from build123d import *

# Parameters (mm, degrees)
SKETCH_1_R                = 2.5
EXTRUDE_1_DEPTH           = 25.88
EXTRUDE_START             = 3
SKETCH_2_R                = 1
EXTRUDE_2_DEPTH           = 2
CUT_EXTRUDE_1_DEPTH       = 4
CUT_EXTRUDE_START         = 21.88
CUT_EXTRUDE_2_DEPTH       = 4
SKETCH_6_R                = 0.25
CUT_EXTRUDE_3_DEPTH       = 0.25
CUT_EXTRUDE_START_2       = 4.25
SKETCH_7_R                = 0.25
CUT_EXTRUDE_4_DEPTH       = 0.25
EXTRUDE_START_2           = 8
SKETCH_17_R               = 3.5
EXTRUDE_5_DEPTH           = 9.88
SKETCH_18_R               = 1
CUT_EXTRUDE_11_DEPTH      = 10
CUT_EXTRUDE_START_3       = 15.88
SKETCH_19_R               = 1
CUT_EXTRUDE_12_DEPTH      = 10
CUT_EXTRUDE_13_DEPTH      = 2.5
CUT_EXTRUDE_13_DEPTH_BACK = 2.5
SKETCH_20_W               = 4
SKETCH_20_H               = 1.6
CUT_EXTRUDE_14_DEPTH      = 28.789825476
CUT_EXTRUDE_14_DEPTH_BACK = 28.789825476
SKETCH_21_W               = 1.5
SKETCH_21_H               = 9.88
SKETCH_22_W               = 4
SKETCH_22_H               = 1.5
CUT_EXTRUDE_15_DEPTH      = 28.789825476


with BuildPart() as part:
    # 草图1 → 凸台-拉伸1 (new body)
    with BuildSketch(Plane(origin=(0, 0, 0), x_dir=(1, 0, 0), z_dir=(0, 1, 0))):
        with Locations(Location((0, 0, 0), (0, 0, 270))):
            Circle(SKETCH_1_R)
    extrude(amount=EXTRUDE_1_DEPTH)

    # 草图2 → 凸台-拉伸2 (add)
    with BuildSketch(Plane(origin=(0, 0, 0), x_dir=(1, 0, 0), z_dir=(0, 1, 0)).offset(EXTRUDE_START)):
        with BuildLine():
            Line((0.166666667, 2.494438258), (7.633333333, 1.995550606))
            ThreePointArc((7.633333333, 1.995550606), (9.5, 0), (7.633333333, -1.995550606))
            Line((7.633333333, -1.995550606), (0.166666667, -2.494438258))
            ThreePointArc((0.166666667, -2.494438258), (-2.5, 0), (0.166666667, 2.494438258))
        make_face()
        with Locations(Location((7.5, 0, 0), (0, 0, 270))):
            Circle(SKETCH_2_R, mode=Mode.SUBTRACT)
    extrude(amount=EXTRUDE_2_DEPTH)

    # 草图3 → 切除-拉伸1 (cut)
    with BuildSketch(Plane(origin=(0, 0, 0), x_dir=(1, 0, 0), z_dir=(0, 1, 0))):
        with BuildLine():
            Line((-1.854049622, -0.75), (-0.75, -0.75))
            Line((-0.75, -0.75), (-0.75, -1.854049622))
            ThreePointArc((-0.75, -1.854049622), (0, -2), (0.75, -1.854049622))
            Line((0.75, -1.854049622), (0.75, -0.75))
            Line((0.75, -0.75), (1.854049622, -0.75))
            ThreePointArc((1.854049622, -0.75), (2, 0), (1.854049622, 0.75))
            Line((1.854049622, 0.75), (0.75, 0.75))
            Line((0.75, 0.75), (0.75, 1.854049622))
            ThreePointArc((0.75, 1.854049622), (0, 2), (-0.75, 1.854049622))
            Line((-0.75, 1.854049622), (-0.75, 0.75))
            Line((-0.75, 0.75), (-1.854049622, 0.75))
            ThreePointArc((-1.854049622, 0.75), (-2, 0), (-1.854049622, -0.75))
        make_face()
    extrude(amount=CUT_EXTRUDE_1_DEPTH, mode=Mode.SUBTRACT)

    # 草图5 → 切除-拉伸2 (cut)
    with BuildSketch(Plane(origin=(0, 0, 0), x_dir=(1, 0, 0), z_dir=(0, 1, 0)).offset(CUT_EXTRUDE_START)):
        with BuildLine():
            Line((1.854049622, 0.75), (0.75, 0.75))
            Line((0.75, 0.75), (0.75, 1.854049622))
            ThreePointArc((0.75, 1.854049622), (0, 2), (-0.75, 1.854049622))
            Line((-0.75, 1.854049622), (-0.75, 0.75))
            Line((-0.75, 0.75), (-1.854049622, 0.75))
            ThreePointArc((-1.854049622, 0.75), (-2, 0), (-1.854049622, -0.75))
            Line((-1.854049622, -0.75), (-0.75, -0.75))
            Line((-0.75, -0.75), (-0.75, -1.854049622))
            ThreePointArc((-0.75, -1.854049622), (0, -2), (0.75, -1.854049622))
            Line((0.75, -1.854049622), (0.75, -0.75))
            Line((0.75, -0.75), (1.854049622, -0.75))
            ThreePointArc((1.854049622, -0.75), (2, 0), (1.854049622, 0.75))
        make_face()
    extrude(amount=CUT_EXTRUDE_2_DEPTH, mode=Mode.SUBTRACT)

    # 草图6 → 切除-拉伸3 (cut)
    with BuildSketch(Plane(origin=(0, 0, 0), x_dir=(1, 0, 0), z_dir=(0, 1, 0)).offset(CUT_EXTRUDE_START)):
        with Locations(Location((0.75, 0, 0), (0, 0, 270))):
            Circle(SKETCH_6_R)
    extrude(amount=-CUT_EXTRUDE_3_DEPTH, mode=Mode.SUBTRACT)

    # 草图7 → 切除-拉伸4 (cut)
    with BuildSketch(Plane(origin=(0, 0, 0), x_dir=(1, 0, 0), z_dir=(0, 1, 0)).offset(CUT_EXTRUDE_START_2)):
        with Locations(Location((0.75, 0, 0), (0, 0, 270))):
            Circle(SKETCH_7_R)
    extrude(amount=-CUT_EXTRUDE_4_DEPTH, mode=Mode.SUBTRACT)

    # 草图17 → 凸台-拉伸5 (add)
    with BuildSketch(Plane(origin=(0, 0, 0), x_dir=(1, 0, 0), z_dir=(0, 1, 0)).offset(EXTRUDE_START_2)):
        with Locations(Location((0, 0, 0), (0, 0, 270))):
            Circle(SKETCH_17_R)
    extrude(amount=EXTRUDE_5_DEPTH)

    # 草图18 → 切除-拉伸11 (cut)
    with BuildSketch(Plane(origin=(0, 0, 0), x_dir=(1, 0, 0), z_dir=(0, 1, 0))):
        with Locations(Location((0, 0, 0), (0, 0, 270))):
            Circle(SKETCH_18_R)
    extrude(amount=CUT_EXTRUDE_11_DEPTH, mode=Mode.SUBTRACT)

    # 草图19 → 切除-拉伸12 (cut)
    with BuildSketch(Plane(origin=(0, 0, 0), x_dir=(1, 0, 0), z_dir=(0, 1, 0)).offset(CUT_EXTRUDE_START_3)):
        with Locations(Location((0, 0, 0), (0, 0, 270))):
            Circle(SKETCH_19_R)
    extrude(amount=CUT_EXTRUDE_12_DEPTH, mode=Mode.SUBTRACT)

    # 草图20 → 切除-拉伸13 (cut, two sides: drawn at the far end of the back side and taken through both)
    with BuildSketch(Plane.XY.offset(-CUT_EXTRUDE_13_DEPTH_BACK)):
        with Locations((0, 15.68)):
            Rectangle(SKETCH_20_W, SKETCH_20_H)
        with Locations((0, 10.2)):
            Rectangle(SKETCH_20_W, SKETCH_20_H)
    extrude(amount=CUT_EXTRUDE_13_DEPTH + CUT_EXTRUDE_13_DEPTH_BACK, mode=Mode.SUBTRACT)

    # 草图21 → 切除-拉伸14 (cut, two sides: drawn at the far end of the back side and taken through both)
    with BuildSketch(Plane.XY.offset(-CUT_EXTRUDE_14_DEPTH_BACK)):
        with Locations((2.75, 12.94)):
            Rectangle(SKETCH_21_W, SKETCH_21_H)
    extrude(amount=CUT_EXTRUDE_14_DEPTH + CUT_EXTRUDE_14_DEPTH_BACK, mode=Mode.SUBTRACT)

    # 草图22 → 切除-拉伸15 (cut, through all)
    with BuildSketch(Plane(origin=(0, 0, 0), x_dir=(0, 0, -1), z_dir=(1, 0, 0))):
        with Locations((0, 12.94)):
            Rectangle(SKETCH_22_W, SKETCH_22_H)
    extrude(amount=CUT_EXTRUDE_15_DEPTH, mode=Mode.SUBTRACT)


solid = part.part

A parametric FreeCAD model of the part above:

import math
import FreeCAD as App
import Part
import Sketcher

V = App.Vector
Q = App.Units.Quantity

doc = App.newDocument("Part")
params = doc.addObject("Spreadsheet::Sheet", "Params")
for row, (alias, value) in enumerate([
    ("sketch1_diameter", "5 mm"),
    ("pad1_length", "25.88 mm"),
    ("sketch2_diameter", "2 mm"),
    ("sketch2_radius", "2 mm"),
    ("sketch2_radius2", "2.5 mm"),
    ("pad2_length", "2 mm"),
    ("sketch3_radius", "2 mm"),
    ("pocket1_length", "4 mm"),
    ("sketch4_radius", "2 mm"),
    ("pocket2_length", "4 mm"),
    ("sketch5_diameter", "0.5 mm"),
    ("pocket3_length", "0.25 mm"),
    ("sketch6_diameter", "0.5 mm"),
    ("pocket4_length", "0.25 mm"),
    ("sketch7_diameter", "7 mm"),
    ("pad3_length", "9.88 mm"),
    ("sketch8_diameter", "2 mm"),
    ("pocket5_length", "10 mm"),
    ("sketch9_diameter", "2 mm"),
    ("pocket6_length", "10 mm"),
    ("sketch10_width", "4 mm"),
    ("sketch10_height", "1.6 mm"),
    ("pocket7_length", "2.5 mm"),
    ("pocket7_length2", "2.5 mm"),
    ("sketch11_width", "1.5 mm"),
    ("sketch11_height", "9.88 mm"),
    ("sketch12_height", "4 mm"),
    ("sketch12_width", "1.5 mm"),
], start=1):
    params.set(f"A{row}", alias)
    params.set(f"B{row}", "=" + value)
    params.setAlias(f"B{row}", alias)

body = doc.addObject("PartDesign::Body", "Body")

# Sketch on XZ plane
sketch1 = body.newObject("Sketcher::SketchObject", "Sketch")
sketch1.AttachmentSupport = (doc.getObject("XZ_Plane"), [""])
sketch1.MapMode = "FlatFace"
sketch1.addGeometry(Part.Circle(V(0, 0, 0), V(0, 0, 1), 2.5), False)
sketch1.addConstraint([
    Sketcher.Constraint("Coincident", 0, 3, -1, 1),
    Sketcher.Constraint("Diameter", 0, Q("5 mm")),
])
sketch1.setExpression("Constraints[1]", "Params.sketch1_diameter")
pad1 = body.newObject("PartDesign::Pad", "Pad")
pad1.Profile = sketch1
pad1.setExpression("Length", "Params.pad1_length")
pad1.Reversed = True

# Sketch on XZ plane
sketch2 = body.newObject("Sketcher::SketchObject", "Sketch001")
sketch2.AttachmentSupport = (doc.getObject("XZ_Plane"), [""])
sketch2.MapMode = "FlatFace"
sketch2.AttachmentOffset = App.Placement(V(0, 0, -3), App.Rotation())
sketch2.addGeometry([
    Part.LineSegment(V(7.6, -2, 0), V(0.2, -2.5, 0)),  # 0
    Part.ArcOfCircle(Part.Circle(V(0, 0, 0), V(0, 0, 1), 2.5), math.radians(86), math.radians(274)),  # 1
    Part.LineSegment(V(0.2, 2.5, 0), V(7.6, 2, 0)),  # 2
    Part.ArcOfCircle(Part.Circle(V(7.5, 0, 0), V(0, 0, 1), 2), math.radians(-86), math.radians(86)),  # 3
    Part.Circle(V(7.5, 0, 0), V(0, 0, 1), 1),  # 4
], False)
sketch2.addConstraint([
    Sketcher.Constraint("Tangent", 0, 2, 1, 2),
    Sketcher.Constraint("Tangent", 1, 1, 2, 1),
    Sketcher.Constraint("Tangent", 2, 2, 3, 2),
    Sketcher.Constraint("Tangent", 3, 1, 0, 1),
    Sketcher.Constraint("Coincident", 1, 3, -1, 1),
    Sketcher.Constraint("Coincident", 4, 3, 3, 3),
    Sketcher.Constraint("PointOnObject", 3, 3, -1),
    Sketcher.Constraint("Diameter", 4, Q("2 mm")),
    Sketcher.Constraint("Radius", 3, Q("2 mm")),
    Sketcher.Constraint("Radius", 1, Q("2.5 mm")),
    Sketcher.Constraint("DistanceX", -1, 1, 3, 3, Q("7.5 mm")),
])
sketch2.setExpression("Constraints[7]", "Params.sketch2_diameter")
sketch2.setExpression("Constraints[8]", "Params.sketch2_radius")
sketch2.setExpression("Constraints[9]", "Params.sketch2_radius2")
pad2 = body.newObject("PartDesign::Pad", "Pad001")
pad2.Profile = sketch2
pad2.setExpression("Length", "Params.pad2_length")
pad2.Reversed = True

# Sketch on XZ plane
sketch3 = body.newObject("Sketcher::SketchObject", "Sketch002")
sketch3.AttachmentSupport = (doc.getObject("XZ_Plane"), [""])
sketch3.MapMode = "FlatFace"
sketch3.addGeometry([
    Part.LineSegment(V(-1.9, 0.8, 0), V(-0.8, 0.8, 0)),  # 0
    Part.LineSegment(V(-0.8, 0.8, 0), V(-0.8, 1.9, 0)),  # 1
    Part.ArcOfCircle(Part.Circle(V(0, 0, 0), V(0, 0, 1), 2), math.radians(68), math.radians(112)),  # 2
    Part.LineSegment(V(0.8, 1.9, 0), V(0.8, 0.8, 0)),  # 3
    Part.LineSegment(V(0.8, 0.8, 0), V(1.9, 0.8, 0)),  # 4
    Part.ArcOfCircle(Part.Circle(V(0, 0, 0), V(0, 0, 1), 2), math.radians(-22), math.radians(22)),  # 5
    Part.LineSegment(V(1.9, -0.8, 0), V(0.8, -0.8, 0)),  # 6
    Part.LineSegment(V(0.8, -0.8, 0), V(0.8, -1.9, 0)),  # 7
    Part.ArcOfCircle(Part.Circle(V(0, 0, 0), V(0, 0, 1), 2), math.radians(-112), math.radians(-68)),  # 8
    Part.LineSegment(V(-0.8, -1.9, 0), V(-0.8, -0.8, 0)),  # 9
    Part.LineSegment(V(-0.8, -0.8, 0), V(-1.9, -0.8, 0)),  # 10
    Part.ArcOfCircle(Part.Circle(V(0, 0, 0), V(0, 0, 1), 2), math.radians(158), math.radians(202)),  # 11
], False)
sketch3.addConstraint([
    Sketcher.Constraint("Coincident", 0, 2, 1, 1),
    Sketcher.Constraint("Coincident", 1, 2, 2, 2),
    Sketcher.Constraint("Coincident", 2, 1, 3, 1),
    Sketcher.Constraint("Coincident", 3, 2, 4, 1),
    Sketcher.Constraint("Coincident", 4, 2, 5, 2),
    Sketcher.Constraint("Coincident", 5, 1, 6, 1),
    Sketcher.Constraint("Coincident", 6, 2, 7, 1),
    Sketcher.Constraint("Coincident", 7, 2, 8, 2),
    Sketcher.Constraint("Coincident", 8, 1, 9, 1),
    Sketcher.Constraint("Coincident", 9, 2, 10, 1),
    Sketcher.Constraint("Coincident", 10, 2, 11, 2),
    Sketcher.Constraint("Coincident", 11, 1, 0, 1),
    Sketcher.Constraint("Horizontal", 0),
    Sketcher.Constraint("Vertical", 1),
    Sketcher.Constraint("Vertical", 3),
    Sketcher.Constraint("Horizontal", 4),
    Sketcher.Constraint("Horizontal", 6),
    Sketcher.Constraint("Vertical", 7),
    Sketcher.Constraint("Vertical", 9),
    Sketcher.Constraint("Horizontal", 10),
    Sketcher.Constraint("Coincident", 2, 3, -1, 1),
    Sketcher.Constraint("Coincident", 5, 3, -1, 1),
    Sketcher.Constraint("Coincident", 8, 3, -1, 1),
    Sketcher.Constraint("Coincident", 11, 3, -1, 1),
    Sketcher.Constraint("Equal", 2, 5),
    Sketcher.Constraint("Equal", 5, 8),
    Sketcher.Constraint("Equal", 8, 11),
    Sketcher.Constraint("Symmetric", 0, 2, 6, 2, -1, 1),
    Sketcher.Constraint("Symmetric", 3, 2, 9, 2, -1, 1),
    Sketcher.Constraint("Symmetric", 0, 2, 3, 2, -2),
    Sketcher.Constraint("Equal", 10, 1),
    Sketcher.Constraint("Radius", 2, Q("2 mm")),
    Sketcher.Constraint("DistanceX", 1, 2, 2, 1, Q("1.5 mm")),
])
sketch3.setExpression("Constraints[31]", "Params.sketch3_radius")
pocket1 = body.newObject("PartDesign::Pocket", "Pocket")
pocket1.Profile = sketch3
pocket1.setExpression("Length", "Params.pocket1_length")

# Sketch on XZ plane
sketch4 = body.newObject("Sketcher::SketchObject", "Sketch003")
sketch4.AttachmentSupport = (doc.getObject("XZ_Plane"), [""])
sketch4.MapMode = "FlatFace"
sketch4.AttachmentOffset = App.Placement(V(0, 0, -21.88), App.Rotation())
sketch4.addGeometry([
    Part.LineSegment(V(1.9, -0.8, 0), V(0.8, -0.8, 0)),  # 0
    Part.LineSegment(V(0.8, -0.8, 0), V(0.8, -1.9, 0)),  # 1
    Part.ArcOfCircle(Part.Circle(V(0, 0, 0), V(0, 0, 1), 2), math.radians(-112), math.radians(-68)),  # 2
    Part.LineSegment(V(-0.8, -1.9, 0), V(-0.8, -0.8, 0)),  # 3
    Part.LineSegment(V(-0.8, -0.8, 0), V(-1.9, -0.8, 0)),  # 4
    Part.ArcOfCircle(Part.Circle(V(0, 0, 0), V(0, 0, 1), 2), math.radians(158), math.radians(202)),  # 5
    Part.LineSegment(V(-1.9, 0.8, 0), V(-0.8, 0.8, 0)),  # 6
    Part.LineSegment(V(-0.8, 0.8, 0), V(-0.8, 1.9, 0)),  # 7
    Part.ArcOfCircle(Part.Circle(V(0, 0, 0), V(0, 0, 1), 2), math.radians(68), math.radians(112)),  # 8
    Part.LineSegment(V(0.8, 1.9, 0), V(0.8, 0.8, 0)),  # 9
    Part.LineSegment(V(0.8, 0.8, 0), V(1.9, 0.8, 0)),  # 10
    Part.ArcOfCircle(Part.Circle(V(0, 0, 0), V(0, 0, 1), 2), math.radians(-22), math.radians(22)),  # 11
], False)
sketch4.addConstraint([
    Sketcher.Constraint("Coincident", 0, 2, 1, 1),
    Sketcher.Constraint("Coincident", 1, 2, 2, 2),
    Sketcher.Constraint("Coincident", 2, 1, 3, 1),
    Sketcher.Constraint("Coincident", 3, 2, 4, 1),
    Sketcher.Constraint("Coincident", 4, 2, 5, 2),
    Sketcher.Constraint("Coincident", 5, 1, 6, 1),
    Sketcher.Constraint("Coincident", 6, 2, 7, 1),
    Sketcher.Constraint("Coincident", 7, 2, 8, 2),
    Sketcher.Constraint("Coincident", 8, 1, 9, 1),
    Sketcher.Constraint("Coincident", 9, 2, 10, 1),
    Sketcher.Constraint("Coincident", 10, 2, 11, 2),
    Sketcher.Constraint("Coincident", 11, 1, 0, 1),
    Sketcher.Constraint("Horizontal", 0),
    Sketcher.Constraint("Vertical", 1),
    Sketcher.Constraint("Vertical", 3),
    Sketcher.Constraint("Horizontal", 4),
    Sketcher.Constraint("Horizontal", 6),
    Sketcher.Constraint("Vertical", 7),
    Sketcher.Constraint("Vertical", 9),
    Sketcher.Constraint("Horizontal", 10),
    Sketcher.Constraint("Coincident", 2, 3, -1, 1),
    Sketcher.Constraint("Coincident", 5, 3, -1, 1),
    Sketcher.Constraint("Coincident", 8, 3, -1, 1),
    Sketcher.Constraint("Coincident", 11, 3, -1, 1),
    Sketcher.Constraint("Equal", 2, 5),
    Sketcher.Constraint("Equal", 5, 8),
    Sketcher.Constraint("Equal", 8, 11),
    Sketcher.Constraint("Symmetric", 0, 2, 6, 2, -1, 1),
    Sketcher.Constraint("Symmetric", 3, 2, 9, 2, -1, 1),
    Sketcher.Constraint("Symmetric", 0, 2, 3, 2, -2),
    Sketcher.Constraint("Equal", 10, 1),
    Sketcher.Constraint("Radius", 2, Q("2 mm")),
    Sketcher.Constraint("DistanceX", 2, 1, 1, 2, Q("1.5 mm")),
])
sketch4.setExpression("Constraints[31]", "Params.sketch4_radius")
pocket2 = body.newObject("PartDesign::Pocket", "Pocket001")
pocket2.Profile = sketch4
pocket2.setExpression("Length", "Params.pocket2_length")

# Sketch on XZ plane
sketch5 = body.newObject("Sketcher::SketchObject", "Sketch004")
sketch5.AttachmentSupport = (doc.getObject("XZ_Plane"), [""])
sketch5.MapMode = "FlatFace"
sketch5.AttachmentOffset = App.Placement(V(0, 0, -21.88), App.Rotation())
sketch5.addGeometry(Part.Circle(V(0.75, 0, 0), V(0, 0, 1), 0.25), False)
sketch5.addConstraint([
    Sketcher.Constraint("PointOnObject", 0, 3, -1),
    Sketcher.Constraint("Diameter", 0, Q("0.5 mm")),
    Sketcher.Constraint("DistanceX", -1, 1, 0, 3, Q("0.75 mm")),
])
sketch5.setExpression("Constraints[1]", "Params.sketch5_diameter")
pocket3 = body.newObject("PartDesign::Pocket", "Pocket002")
pocket3.Profile = sketch5
pocket3.setExpression("Length", "Params.pocket3_length")
pocket3.Reversed = True

# Sketch on XZ plane
sketch6 = body.newObject("Sketcher::SketchObject", "Sketch005")
sketch6.AttachmentSupport = (doc.getObject("XZ_Plane"), [""])
sketch6.MapMode = "FlatFace"
sketch6.AttachmentOffset = App.Placement(V(0, 0, -4.25), App.Rotation())
sketch6.addGeometry(Part.Circle(V(0.75, 0, 0), V(0, 0, 1), 0.25), False)
sketch6.addConstraint([
    Sketcher.Constraint("PointOnObject", 0, 3, -1),
    Sketcher.Constraint("Diameter", 0, Q("0.5 mm")),
    Sketcher.Constraint("DistanceX", -1, 1, 0, 3, Q("0.75 mm")),
])
sketch6.setExpression("Constraints[1]", "Params.sketch6_diameter")
pocket4 = body.newObject("PartDesign::Pocket", "Pocket003")
pocket4.Profile = sketch6
pocket4.setExpression("Length", "Params.pocket4_length")
pocket4.Reversed = True

# Sketch on XZ plane
sketch7 = body.newObject("Sketcher::SketchObject", "Sketch006")
sketch7.AttachmentSupport = (doc.getObject("XZ_Plane"), [""])
sketch7.MapMode = "FlatFace"
sketch7.AttachmentOffset = App.Placement(V(0, 0, -8), App.Rotation())
sketch7.addGeometry(Part.Circle(V(0, 0, 0), V(0, 0, 1), 3.5), False)
sketch7.addConstraint([
    Sketcher.Constraint("Coincident", 0, 3, -1, 1),
    Sketcher.Constraint("Diameter", 0, Q("7 mm")),
])
sketch7.setExpression("Constraints[1]", "Params.sketch7_diameter")
pad3 = body.newObject("PartDesign::Pad", "Pad002")
pad3.Profile = sketch7
pad3.setExpression("Length", "Params.pad3_length")
pad3.Reversed = True

# Sketch on XZ plane
sketch8 = body.newObject("Sketcher::SketchObject", "Sketch007")
sketch8.AttachmentSupport = (doc.getObject("XZ_Plane"), [""])
sketch8.MapMode = "FlatFace"
sketch8.addGeometry(Part.Circle(V(0, 0, 0), V(0, 0, 1), 1), False)
sketch8.addConstraint([
    Sketcher.Constraint("Coincident", 0, 3, -1, 1),
    Sketcher.Constraint("Diameter", 0, Q("2 mm")),
])
sketch8.setExpression("Constraints[1]", "Params.sketch8_diameter")
pocket5 = body.newObject("PartDesign::Pocket", "Pocket004")
pocket5.Profile = sketch8
pocket5.setExpression("Length", "Params.pocket5_length")

# Sketch on XZ plane
sketch9 = body.newObject("Sketcher::SketchObject", "Sketch008")
sketch9.AttachmentSupport = (doc.getObject("XZ_Plane"), [""])
sketch9.MapMode = "FlatFace"
sketch9.AttachmentOffset = App.Placement(V(0, 0, -15.88), App.Rotation())
sketch9.addGeometry(Part.Circle(V(0, 0, 0), V(0, 0, 1), 1), False)
sketch9.addConstraint([
    Sketcher.Constraint("Coincident", 0, 3, -1, 1),
    Sketcher.Constraint("Diameter", 0, Q("2 mm")),
])
sketch9.setExpression("Constraints[1]", "Params.sketch9_diameter")
pocket6 = body.newObject("PartDesign::Pocket", "Pocket005")
pocket6.Profile = sketch9
pocket6.setExpression("Length", "Params.pocket6_length")

# Sketch on XY plane
sketch10 = body.newObject("Sketcher::SketchObject", "Sketch009")
sketch10.AttachmentSupport = (doc.getObject("XY_Plane"), [""])
sketch10.MapMode = "FlatFace"
sketch10.addGeometry([
    Part.LineSegment(V(-2, 16.5, 0), V(-2, 14.9, 0)),  # 0
    Part.LineSegment(V(-2, 14.9, 0), V(2, 14.9, 0)),  # 1
    Part.LineSegment(V(2, 14.9, 0), V(2, 16.5, 0)),  # 2
    Part.LineSegment(V(2, 16.5, 0), V(-2, 16.5, 0)),  # 3
    Part.LineSegment(V(-2, 11, 0), V(-2, 9.4, 0)),  # 4
    Part.LineSegment(V(-2, 9.4, 0), V(2, 9.4, 0)),  # 5
    Part.LineSegment(V(2, 9.4, 0), V(2, 11, 0)),  # 6
    Part.LineSegment(V(2, 11, 0), V(-2, 11, 0)),  # 7
], False)
sketch10.addConstraint([
    Sketcher.Constraint("Coincident", 0, 2, 1, 1),
    Sketcher.Constraint("Coincident", 1, 2, 2, 1),
    Sketcher.Constraint("Coincident", 2, 2, 3, 1),
    Sketcher.Constraint("Coincident", 3, 2, 0, 1),
    Sketcher.Constraint("Coincident", 4, 2, 5, 1),
    Sketcher.Constraint("Coincident", 5, 2, 6, 1),
    Sketcher.Constraint("Coincident", 6, 2, 7, 1),
    Sketcher.Constraint("Coincident", 7, 2, 4, 1),
    Sketcher.Constraint("Vertical", 0),
    Sketcher.Constraint("Horizontal", 1),
    Sketcher.Constraint("Vertical", 2),
    Sketcher.Constraint("Horizontal", 3),
    Sketcher.Constraint("Vertical", 4),
    Sketcher.Constraint("Horizontal", 5),
    Sketcher.Constraint("Vertical", 6),
    Sketcher.Constraint("Horizontal", 7),
    Sketcher.Constraint("Vertical", 3, 2, 4, 2),
    Sketcher.Constraint("Vertical", 2, 2, 5, 2),
    Sketcher.Constraint("Equal", 2, 4),
    Sketcher.Constraint("DistanceX", 1, 1, 1, 2, Q("4 mm")),
    Sketcher.Constraint("DistanceY", 0, 2, 0, 1, Q("1.6 mm")),
    Sketcher.Constraint("DistanceX", 0, 2, -1, 1, Q("2 mm")),
    Sketcher.Constraint("DistanceY", -1, 1, 6, 2, Q("11 mm")),
    Sketcher.Constraint("DistanceY", -1, 1, 0, 2, Q("14.88 mm")),
])
sketch10.setExpression("Constraints[19]", "Params.sketch10_width")
sketch10.setExpression("Constraints[20]", "Params.sketch10_height")
pocket7 = body.newObject("PartDesign::Pocket", "Pocket006")
pocket7.Profile = sketch10
pocket7.Type = "TwoLengths"
pocket7.setExpression("Length", "Params.pocket7_length")
pocket7.setExpression("Length2", "Params.pocket7_length2")
pocket7.Reversed = True

# Sketch on XY plane
sketch11 = body.newObject("Sketcher::SketchObject", "Sketch010")
sketch11.AttachmentSupport = (doc.getObject("XY_Plane"), [""])
sketch11.MapMode = "FlatFace"
sketch11.addGeometry([
    Part.LineSegment(V(2, 17.9, 0), V(2, 8, 0)),
    Part.LineSegment(V(2, 8, 0), V(3.5, 8, 0)),
    Part.LineSegment(V(3.5, 8, 0), V(3.5, 17.9, 0)),
    Part.LineSegment(V(3.5, 17.9, 0), V(2, 17.9, 0)),
], False)
sketch11.addConstraint([
    Sketcher.Constraint("Coincident", 0, 2, 1, 1),
    Sketcher.Constraint("Coincident", 1, 2, 2, 1),
    Sketcher.Constraint("Coincident", 2, 2, 3, 1),
    Sketcher.Constraint("Coincident", 3, 2, 0, 1),
    Sketcher.Constraint("Vertical", 0),
    Sketcher.Constraint("Horizontal", 1),
    Sketcher.Constraint("Vertical", 2),
    Sketcher.Constraint("Horizontal", 3),
    Sketcher.Constraint("DistanceX", 1, 1, 1, 2, Q("1.5 mm")),
    Sketcher.Constraint("DistanceX", -1, 1, 0, 2, Q("2 mm")),
    Sketcher.Constraint("DistanceY", -1, 1, 0, 2, Q("8 mm")),
    Sketcher.Constraint("DistanceY", 0, 2, 0, 1, Q("9.88 mm")),
])
sketch11.setExpression("Constraints[8]", "Params.sketch11_width")
sketch11.setExpression("Constraints[11]", "Params.sketch11_height")
pocket8 = body.newObject("PartDesign::Pocket", "Pocket007")
pocket8.Profile = sketch11
pocket8.Type = "ThroughAll"
pocket8.Midplane = True

# Sketch on YZ plane
sketch12 = body.newObject("Sketcher::SketchObject", "Sketch011")
sketch12.AttachmentSupport = (doc.getObject("YZ_Plane"), [""])
sketch12.MapMode = "FlatFace"
sketch12.addGeometry([
    Part.LineSegment(V(13.7, 2, 0), V(12.2, 2, 0)),
    Part.LineSegment(V(12.2, 2, 0), V(12.2, -2, 0)),
    Part.LineSegment(V(12.2, -2, 0), V(13.7, -2, 0)),
    Part.LineSegment(V(13.7, -2, 0), V(13.7, 2, 0)),
], False)
sketch12.addConstraint([
    Sketcher.Constraint("Coincident", 0, 2, 1, 1),
    Sketcher.Constraint("Coincident", 1, 2, 2, 1),
    Sketcher.Constraint("Coincident", 2, 2, 3, 1),
    Sketcher.Constraint("Coincident", 3, 2, 0, 1),
    Sketcher.Constraint("Horizontal", 0),
    Sketcher.Constraint("Vertical", 1),
    Sketcher.Constraint("Horizontal", 2),
    Sketcher.Constraint("Vertical", 3),
    Sketcher.Constraint("DistanceY", 1, 2, 1, 1, Q("4 mm")),
    Sketcher.Constraint("DistanceX", 0, 2, 0, 1, Q("1.5 mm")),
    Sketcher.Constraint("DistanceY", -1, 1, 0, 2, Q("2 mm")),
    Sketcher.Constraint("DistanceX", -1, 1, 0, 2, Q("12.19 mm")),
])
sketch12.setExpression("Constraints[8]", "Params.sketch12_height")
sketch12.setExpression("Constraints[9]", "Params.sketch12_width")
pocket9 = body.newObject("PartDesign::Pocket", "Pocket008")
pocket9.Profile = sketch12
pocket9.Type = "ThroughAll"
pocket9.Reversed = True

doc.recompute()
